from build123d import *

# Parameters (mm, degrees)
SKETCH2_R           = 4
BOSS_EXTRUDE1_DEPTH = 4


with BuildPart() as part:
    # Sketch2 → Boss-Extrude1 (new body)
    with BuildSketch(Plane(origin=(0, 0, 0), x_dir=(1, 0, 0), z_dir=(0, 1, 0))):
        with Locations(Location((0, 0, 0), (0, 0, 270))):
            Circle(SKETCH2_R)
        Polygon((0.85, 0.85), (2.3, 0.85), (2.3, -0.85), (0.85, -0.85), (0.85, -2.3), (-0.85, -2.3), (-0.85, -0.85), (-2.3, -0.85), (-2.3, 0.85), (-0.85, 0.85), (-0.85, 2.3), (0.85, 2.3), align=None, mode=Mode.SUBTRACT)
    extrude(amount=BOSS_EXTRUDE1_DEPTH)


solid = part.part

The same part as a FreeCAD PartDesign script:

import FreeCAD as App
import Part
import Sketcher
Q = App.Units.Quantity

doc = App.newDocument("Part")
body = doc.addObject("PartDesign::Body", "Body")

# Sketch on XZ plane
sketch1 = body.newObject("Sketcher::SketchObject", "Sketch")
sketch1.AttachmentSupport = (doc.getObject("XZ_Plane"), [""])
sketch1.MapMode = "FlatFace"
sketch1.addGeometry(Part.Circle(App.Vector(0, 0, 0), App.Vector(0, 0, 1), 4), False)
sketch1.addGeometry(Part.LineSegment(App.Vector(0.8, -2.3, 0), App.Vector(0.8, -0.8, 0)), False)
sketch1.addGeometry(Part.LineSegment(App.Vector(0.8, -0.8, 0), App.Vector(2.3, -0.8, 0)), False)
sketch1.addGeometry(Part.LineSegment(App.Vector(2.3, -0.8, 0), App.Vector(2.3, 0.8, 0)), False)
sketch1.addGeometry(Part.LineSegment(App.Vector(2.3, 0.8, 0), App.Vector(0.8, 0.8, 0)), False)
sketch1.addGeometry(Part.LineSegment(App.Vector(0.8, 0.8, 0), App.Vector(0.8, 2.3, 0)), False)
sketch1.addGeometry(Part.LineSegment(App.Vector(0.8, 2.3, 0), App.Vector(-0.8, 2.3, 0)), False)
sketch1.addGeometry(Part.LineSegment(App.Vector(-0.8, 2.3, 0), App.Vector(-0.8, 0.8, 0)), False)
sketch1.addGeometry(Part.LineSegment(App.Vector(-0.8, 0.8, 0), App.Vector(-2.3, 0.8, 0)), False)
sketch1.addGeometry(Part.LineSegment(App.Vector(-2.3, 0.8, 0), App.Vector(-2.3, -0.8, 0)), False)
sketch1.addGeometry(Part.LineSegment(App.Vector(-2.3, -0.8, 0), App.Vector(-0.8, -0.8, 0)), False)
sketch1.addGeometry(Part.LineSegment(App.Vector(-0.8, -0.8, 0), App.Vector(-0.8, -2.3, 0)), False)
sketch1.addGeometry(Part.LineSegment(App.Vector(-0.8, -2.3, 0), App.Vector(0.8, -2.3, 0)), False)
sketch1.addConstraint(Sketcher.Constraint("Coincident", 1, 2, 2, 1))
sketch1.addConstraint(Sketcher.Constraint("Coincident", 2, 2, 3, 1))
sketch1.addConstraint(Sketcher.Constraint("Coincident", 3, 2, 4, 1))
sketch1.addConstraint(Sketcher.Constraint("Coincident", 4, 2, 5, 1))
sketch1.addConstraint(Sketcher.Constraint("Coincident", 5, 2, 6, 1))
sketch1.addConstraint(Sketcher.Constraint("Coincident", 6, 2, 7, 1))
sketch1.addConstraint(Sketcher.Constraint("Coincident", 7, 2, 8, 1))
sketch1.addConstraint(Sketcher.Constraint("Coincident", 8, 2, 9, 1))
sketch1.addConstraint(Sketcher.Constraint("Coincident", 9, 2, 10, 1))
sketch1.addConstraint(Sketcher.Constraint("Coincident", 10, 2, 11, 1))
sketch1.addConstraint(Sketcher.Constraint("Coincident", 11, 2, 12, 1))
sketch1.addConstraint(Sketcher.Constraint("Coincident", 12, 2, 1, 1))
sketch1.addConstraint(Sketcher.Constraint("Vertical", 1))
sketch1.addConstraint(Sketcher.Constraint("Horizontal", 2))
sketch1.addConstraint(Sketcher.Constraint("Vertical", 3))
sketch1.addConstraint(Sketcher.Constraint("Horizontal", 4))
sketch1.addConstraint(Sketcher.Constraint("Vertical", 5))
sketch1.addConstraint(Sketcher.Constraint("Horizontal", 6))
sketch1.addConstraint(Sketcher.Constraint("Vertical", 7))
sketch1.addConstraint(Sketcher.Constraint("Horizontal", 8))
sketch1.addConstraint(Sketcher.Constraint("Vertical", 9))
sketch1.addConstraint(Sketcher.Constraint("Horizontal", 10))
sketch1.addConstraint(Sketcher.Constraint("Vertical", 11))
sketch1.addConstraint(Sketcher.Constraint("Horizontal", 12))
sketch1.addConstraint(Sketcher.Constraint("Coincident", 0, 3, -1, 1))
sketch1.addConstraint(Sketcher.Constraint("Symmetric", 1, 2, 7, 2, -1, 1))
sketch1.addConstraint(Sketcher.Constraint("Symmetric", 3, 2, 9, 2, -1, 1))
sketch1.addConstraint(Sketcher.Constraint("Symmetric", 5, 2, 11, 2, -1, 1))
sketch1.addConstraint(Sketcher.Constraint("Symmetric", 4, 2, 7, 2, -2))
sketch1.addConstraint(Sketcher.Constraint("Equal", 10, 1))
sketch1.addConstraint(Sketcher.Constraint("Equal", 12, 3))
sketch1.addConstraint(Sketcher.Constraint("Diameter", 0, Q("8 mm")))
sketch1.addConstraint(Sketcher.Constraint("DistanceX", 6, 2, 6, 1, Q("1.7 mm")))
sketch1.addConstraint(Sketcher.Constraint("DistanceX", 2, 1, 2, 2, Q("1.45 mm")))
pad1 = body.newObject("PartDesign::Pad", "Pad")
pad1.Profile = sketch1
pad1.Length = 4
pad1.Reversed = True

doc.recompute()
